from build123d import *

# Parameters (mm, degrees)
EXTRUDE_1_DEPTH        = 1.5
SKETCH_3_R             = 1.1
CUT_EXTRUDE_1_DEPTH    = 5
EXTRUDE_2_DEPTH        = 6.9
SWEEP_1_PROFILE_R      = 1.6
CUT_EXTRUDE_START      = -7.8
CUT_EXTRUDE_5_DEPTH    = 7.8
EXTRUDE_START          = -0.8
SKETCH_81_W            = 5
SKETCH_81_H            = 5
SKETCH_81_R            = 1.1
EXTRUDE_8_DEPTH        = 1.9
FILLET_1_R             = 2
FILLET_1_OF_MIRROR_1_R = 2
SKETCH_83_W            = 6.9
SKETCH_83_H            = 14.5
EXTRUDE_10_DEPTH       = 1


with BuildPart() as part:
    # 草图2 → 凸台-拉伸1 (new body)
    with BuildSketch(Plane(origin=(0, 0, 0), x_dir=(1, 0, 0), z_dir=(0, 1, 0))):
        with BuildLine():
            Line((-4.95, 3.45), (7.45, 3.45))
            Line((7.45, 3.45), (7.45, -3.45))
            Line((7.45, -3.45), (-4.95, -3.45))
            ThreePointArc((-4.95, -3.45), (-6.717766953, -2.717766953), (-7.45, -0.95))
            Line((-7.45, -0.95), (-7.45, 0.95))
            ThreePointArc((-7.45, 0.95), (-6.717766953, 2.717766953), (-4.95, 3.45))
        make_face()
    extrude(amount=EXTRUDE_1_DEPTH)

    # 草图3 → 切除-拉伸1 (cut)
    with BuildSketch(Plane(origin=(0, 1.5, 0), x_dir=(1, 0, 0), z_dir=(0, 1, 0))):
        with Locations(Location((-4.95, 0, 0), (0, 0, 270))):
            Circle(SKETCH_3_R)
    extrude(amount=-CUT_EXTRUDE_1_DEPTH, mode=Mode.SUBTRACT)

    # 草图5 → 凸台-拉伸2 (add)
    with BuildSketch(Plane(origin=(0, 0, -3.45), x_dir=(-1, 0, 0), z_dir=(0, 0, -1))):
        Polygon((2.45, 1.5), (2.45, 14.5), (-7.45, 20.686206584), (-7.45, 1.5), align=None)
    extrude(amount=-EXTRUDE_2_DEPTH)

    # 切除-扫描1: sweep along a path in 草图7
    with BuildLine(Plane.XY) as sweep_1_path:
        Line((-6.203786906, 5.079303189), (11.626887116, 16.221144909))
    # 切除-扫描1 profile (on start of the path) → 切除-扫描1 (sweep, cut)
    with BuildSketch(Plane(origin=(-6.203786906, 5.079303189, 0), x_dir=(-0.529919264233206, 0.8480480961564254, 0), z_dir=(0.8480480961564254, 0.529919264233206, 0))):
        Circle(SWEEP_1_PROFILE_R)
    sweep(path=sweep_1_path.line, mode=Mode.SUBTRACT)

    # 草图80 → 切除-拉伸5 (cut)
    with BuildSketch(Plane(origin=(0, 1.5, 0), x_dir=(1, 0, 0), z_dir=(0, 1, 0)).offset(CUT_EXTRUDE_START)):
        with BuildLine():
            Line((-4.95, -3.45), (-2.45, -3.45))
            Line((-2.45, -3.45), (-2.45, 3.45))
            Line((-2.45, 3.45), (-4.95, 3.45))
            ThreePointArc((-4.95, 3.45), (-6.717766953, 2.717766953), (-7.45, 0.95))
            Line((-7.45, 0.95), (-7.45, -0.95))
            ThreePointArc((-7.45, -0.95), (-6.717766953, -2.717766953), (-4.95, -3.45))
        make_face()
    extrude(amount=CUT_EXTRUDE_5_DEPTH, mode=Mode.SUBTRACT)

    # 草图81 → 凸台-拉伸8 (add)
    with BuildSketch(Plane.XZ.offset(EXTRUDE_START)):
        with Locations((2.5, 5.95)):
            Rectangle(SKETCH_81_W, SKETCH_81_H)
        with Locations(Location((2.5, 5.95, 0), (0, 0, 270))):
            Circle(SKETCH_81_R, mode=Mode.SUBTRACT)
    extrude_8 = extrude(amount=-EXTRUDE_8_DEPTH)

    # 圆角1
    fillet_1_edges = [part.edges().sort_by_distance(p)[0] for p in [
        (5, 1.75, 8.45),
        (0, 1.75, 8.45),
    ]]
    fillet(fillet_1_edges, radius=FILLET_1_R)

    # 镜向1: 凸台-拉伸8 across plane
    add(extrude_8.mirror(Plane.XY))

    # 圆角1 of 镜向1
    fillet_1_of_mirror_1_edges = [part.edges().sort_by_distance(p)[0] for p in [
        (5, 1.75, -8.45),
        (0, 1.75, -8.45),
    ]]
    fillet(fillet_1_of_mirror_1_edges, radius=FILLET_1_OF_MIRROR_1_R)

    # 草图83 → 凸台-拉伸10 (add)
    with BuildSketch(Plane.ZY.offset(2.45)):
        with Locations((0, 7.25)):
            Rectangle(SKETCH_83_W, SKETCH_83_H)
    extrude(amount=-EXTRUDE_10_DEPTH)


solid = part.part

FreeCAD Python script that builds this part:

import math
import FreeCAD as App
import Part
import Sketcher
Q = App.Units.Quantity


def edges_at(feature, points):
    """Names of the edges that pass closest to the given points."""
    edges = feature.Shape.Edges
    near = lambda p: min(range(len(edges)), key=lambda i: edges[i].distToShape(Part.Vertex(*p))[0])
    return sorted({f"Edge{near(p) + 1}" for p in points})

doc = App.newDocument("Part")
body = doc.addObject("PartDesign::Body", "Body")

sketch1 = doc.addObject("Sketcher::SketchObject", "Sketch")
body.addObject(sketch1)
sketch1.AttachmentSupport = (doc.XZ_Plane, [""])
sketch1.MapMode = "FlatFace"
sketch1.addGeometry([
    Part.LineSegment(App.Vector(7.45, -3.45, 0), App.Vector(-4.95, -3.45, 0)),
    Part.ArcOfCircle(Part.Circle(App.Vector(-4.95, -0.95, 0), App.Vector(0, 0, 1), 2.5), math.radians(180), math.radians(270)),
    Part.LineSegment(App.Vector(-7.45, -0.95, 0), App.Vector(-7.45, 0.95, 0)),
    Part.ArcOfCircle(Part.Circle(App.Vector(-4.95, 0.95, 0), App.Vector(0, 0, 1), 2.5), math.radians(90), math.radians(180)),
    Part.LineSegment(App.Vector(-4.95, 3.45, 0), App.Vector(7.45, 3.45, 0)),
    Part.LineSegment(App.Vector(7.45, 3.45, 0), App.Vector(7.45, -3.45, 0)),
], False)
sketch1.addConstraint([
    Sketcher.Constraint("Tangent", 0, 2, 1, 2),
    Sketcher.Constraint("Tangent", 1, 1, 2, 1),
    Sketcher.Constraint("Tangent", 2, 2, 3, 2),
    Sketcher.Constraint("Tangent", 3, 1, 4, 1),
    Sketcher.Constraint("Coincident", 4, 2, 5, 1),
    Sketcher.Constraint("Coincident", 5, 2, 0, 1),
    Sketcher.Constraint("Horizontal", 0),
    Sketcher.Constraint("Vertical", 2),
    Sketcher.Constraint("Horizontal", 4),
    Sketcher.Constraint("Vertical", 5),
    Sketcher.Constraint("Equal", 1, 3),
    Sketcher.Constraint("Radius", 1, Q("2.5 mm")),
    Sketcher.Constraint("DistanceX", 0, 2, 0, 1, Q("12.4 mm")),
    Sketcher.Constraint("DistanceY", 2, 1, 2, 2, Q("1.9 mm")),
    Sketcher.Constraint("DistanceX", 1, 3, -1, 1, Q("4.95 mm")),
    Sketcher.Constraint("DistanceY", 1, 3, -1, 1, Q("0.95 mm")),
])
pad1 = doc.addObject("PartDesign::Pad", "Pad")
body.addObject(pad1)
pad1.Profile = sketch1
pad1.Length = 1.5
pad1.Reversed = True

sketch2 = doc.addObject("Sketcher::SketchObject", "Sketch001")
body.addObject(sketch2)
sketch2.AttachmentSupport = (doc.XZ_Plane, [""])
sketch2.MapMode = "FlatFace"
sketch2.AttachmentOffset = App.Placement(App.Vector(0, 0, -1.5), App.Rotation())
sketch2.addGeometry(Part.Circle(App.Vector(-4.95, 0, 0), App.Vector(0, 0, 1), 1.1), False)
sketch2.addConstraint([
    Sketcher.Constraint("PointOnObject", 0, 3, -1),
    Sketcher.Constraint("Diameter", 0, Q("2.2 mm")),
    Sketcher.Constraint("DistanceX", 0, 3, -1, 1, Q("4.95 mm")),
])
pocket1 = doc.addObject("PartDesign::Pocket", "Pocket")
body.addObject(pocket1)
pocket1.Profile = sketch2
pocket1.Length = 5
pocket1.Reversed = True

sketch3 = doc.addObject("Sketcher::SketchObject", "Sketch002")
body.addObject(sketch3)
sketch3.AttachmentSupport = (doc.XY_Plane, [""])
sketch3.MapMode = "FlatFace"
sketch3.AttachmentOffset = App.Placement(App.Vector(0, 0, -3.45), App.Rotation())
sketch3.addGeometry([
    Part.LineSegment(App.Vector(-2.45, 1.5, 0), App.Vector(-2.45, 14.5, 0)),
    Part.LineSegment(App.Vector(-2.45, 14.5, 0), App.Vector(7.45, 20.686207, 0)),
    Part.LineSegment(App.Vector(7.45, 20.686207, 0), App.Vector(7.45, 1.5, 0)),
    Part.LineSegment(App.Vector(7.45, 1.5, 0), App.Vector(-2.45, 1.5, 0)),
], False)
sketch3.addConstraint([
    Sketcher.Constraint("Coincident", 0, 2, 1, 1),
    Sketcher.Constraint("Coincident", 1, 2, 2, 1),
    Sketcher.Constraint("Coincident", 2, 2, 3, 1),
    Sketcher.Constraint("Coincident", 3, 2, 0, 1),
    Sketcher.Constraint("Vertical", 0),
    Sketcher.Constraint("Vertical", 2),
    Sketcher.Constraint("Horizontal", 3),
    Sketcher.Constraint("DistanceY", 0, 1, 0, 2, Q("13 mm")),
    Sketcher.Constraint("Angle", 1, Q("32 deg")),
    Sketcher.Constraint("DistanceX", 3, 2, 3, 1, Q("9.9 mm")),
    Sketcher.Constraint("DistanceY", -1, 1, 0, 2, Q("14.5 mm")),
    Sketcher.Constraint("DistanceX", 0, 2, -1, 1, Q("2.45 mm")),
])
pad2 = doc.addObject("PartDesign::Pad", "Pad001")
body.addObject(pad2)
pad2.Profile = sketch3
pad2.Length = 6.9

sketch4 = doc.addObject("Sketcher::SketchObject", "Sketch003")
body.addObject(sketch4)
sketch4.Placement = App.Placement(App.Vector(-6.203787, 5.079303, 0), App.Rotation(App.Vector(-0.529919264, 0.848048096, 0), App.Vector(0, 0, 0.999999999), App.Vector(0.848048096, 0.529919264, 0), "ZXY"))
sketch4.addGeometry(Part.Circle(App.Vector(0, 0, 0), App.Vector(0, 0, 1), 1.6), False)
sketch4.addConstraint([
    Sketcher.Constraint("Coincident", 0, 3, -1, 1),
    Sketcher.Constraint("Diameter", 0, Q("3.2 mm")),
])

sketch5 = doc.addObject("Sketcher::SketchObject", "Sketch004")
body.addObject(sketch5)
sketch5.Placement = App.Placement(App.Vector(-4.024737, 6.440925, 0), App.Rotation(App.Vector(0.848048096, 0.529919264, 0), App.Vector(0, 0, 0.999999999), App.Vector(0.529919264, -0.848048096, 0), "ZXY"))
sketch5.addGeometry(Part.LineSegment(App.Vector(-2.569489, 0, 0), App.Vector(18.456057, 0, 0)), False)
sketch5.addConstraint([
    Sketcher.Constraint("Horizontal", 0),
    Sketcher.Constraint("PointOnObject", 0, 1, -1),
    Sketcher.Constraint("DistanceX", 0, 1, 0, 2, Q("21.025546 mm")),
    Sketcher.Constraint("DistanceX", 0, 1, -1, 1, Q("2.569489 mm")),
])
doc.recompute()

subtractivepipe = doc.addObject("PartDesign::SubtractivePipe", "SubtractivePipe")
body.addObject(subtractivepipe)
subtractivepipe.Profile = sketch4
subtractivepipe.Spine = (sketch5, ["Edge1"])

sketch6 = doc.addObject("Sketcher::SketchObject", "Sketch005")
body.addObject(sketch6)
sketch6.AttachmentSupport = (doc.XZ_Plane, [""])
sketch6.MapMode = "FlatFace"
sketch6.AttachmentOffset = App.Placement(App.Vector(0, 0, 6.3), App.Rotation())
sketch6.addGeometry([
    Part.LineSegment(App.Vector(-4.95, 3.45, 0), App.Vector(-2.45, 3.45, 0)),
    Part.LineSegment(App.Vector(-2.45, 3.45, 0), App.Vector(-2.45, -3.45, 0)),
    Part.LineSegment(App.Vector(-2.45, -3.45, 0), App.Vector(-4.95, -3.45, 0)),
    Part.ArcOfCircle(Part.Circle(App.Vector(-4.95, -0.95, 0), App.Vector(0, 0, 1), 2.5), math.radians(180), math.radians(270)),
    Part.LineSegment(App.Vector(-7.45, -0.95, 0), App.Vector(-7.45, 0.95, 0)),
    Part.ArcOfCircle(Part.Circle(App.Vector(-4.95, 0.95, 0), App.Vector(0, 0, 1), 2.5), math.radians(90), math.radians(180)),
], False)
sketch6.addConstraint([
    Sketcher.Constraint("Coincident", 0, 2, 1, 1),
    Sketcher.Constraint("Coincident", 1, 2, 2, 1),
    Sketcher.Constraint("Tangent", 2, 2, 3, 2),
    Sketcher.Constraint("Tangent", 3, 1, 4, 1),
    Sketcher.Constraint("Tangent", 4, 2, 5, 2),
    Sketcher.Constraint("Tangent", 5, 1, 0, 1),
    Sketcher.Constraint("Horizontal", 0),
    Sketcher.Constraint("Vertical", 1),
    Sketcher.Constraint("Horizontal", 2),
    Sketcher.Constraint("Vertical", 4),
    Sketcher.Constraint("Equal", 3, 5),
    Sketcher.Constraint("Radius", 3, Q("2.5 mm")),
    Sketcher.Constraint("DistanceX", 0, 1, 0, 2, Q("2.5 mm")),
    Sketcher.Constraint("DistanceY", 1, 2, 1, 1, Q("6.9 mm")),
    Sketcher.Constraint("DistanceX", 3, 3, -1, 1, Q("4.95 mm")),
    Sketcher.Constraint("DistanceY", 3, 3, -1, 1, Q("0.95 mm")),
])
pocket2 = doc.addObject("PartDesign::Pocket", "Pocket001")
body.addObject(pocket2)
pocket2.Profile = sketch6
pocket2.Length = 7.8

sketch7 = doc.addObject("Sketcher::SketchObject", "Sketch006")
body.addObject(sketch7)
sketch7.AttachmentSupport = (doc.XZ_Plane, [""])
sketch7.MapMode = "FlatFace"
sketch7.AttachmentOffset = App.Placement(App.Vector(0, 0, -0.8), App.Rotation())
sketch7.addGeometry([
    Part.LineSegment(App.Vector(0, 8.45, 0), App.Vector(0, 3.45, 0)),
    Part.LineSegment(App.Vector(0, 3.45, 0), App.Vector(5, 3.45, 0)),
    Part.LineSegment(App.Vector(5, 3.45, 0), App.Vector(5, 8.45, 0)),
    Part.LineSegment(App.Vector(5, 8.45, 0), App.Vector(0, 8.45, 0)),
    Part.Circle(App.Vector(2.5, 5.95, 0), App.Vector(0, 0, 1), 1.1),
], False)
sketch7.addConstraint([
    Sketcher.Constraint("Coincident", 0, 2, 1, 1),
    Sketcher.Constraint("Coincident", 1, 2, 2, 1),
    Sketcher.Constraint("Coincident", 2, 2, 3, 1),
    Sketcher.Constraint("Coincident", 3, 2, 0, 1),
    Sketcher.Constraint("Vertical", 0),
    Sketcher.Constraint("Horizontal", 1),
    Sketcher.Constraint("Vertical", 2),
    Sketcher.Constraint("Horizontal", 3),
    Sketcher.Constraint("PointOnObject", 0, 2, -2),
    Sketcher.Constraint("Equal", 3, 0),
    Sketcher.Constraint("Diameter", 4, Q("2.2 mm")),
    Sketcher.Constraint("DistanceX", 1, 1, 1, 2, Q("5 mm")),
    Sketcher.Constraint("DistanceX", -1, 1, 4, 3, Q("2.5 mm")),
    Sketcher.Constraint("DistanceY", 0, 2, 4, 3, Q("2.5 mm")),
    Sketcher.Constraint("DistanceY", -1, 1, 4, 3, Q("5.95 mm")),
])
pad3 = doc.addObject("PartDesign::Pad", "Pad002")
body.addObject(pad3)
pad3.Profile = sketch7
pad3.Length = 1.9
pad3.Reversed = True
doc.recompute()

fillet = doc.addObject("PartDesign::Fillet", "Fillet")
body.addObject(fillet)
fillet.Base = (pad3, edges_at(pad3, [(5, 1.75, 8.45), (0, 1.75, 8.45)]))
fillet.Radius = 2
doc.recompute()

mirrored = doc.addObject("PartDesign::Mirrored", "Mirrored")
body.addObject(mirrored)
mirrored.Originals = [pad3]
mirrored.MirrorPlane = (doc.XY_Plane, [""])
body.Tip = mirrored
doc.recompute()

fillet2 = doc.addObject("PartDesign::Fillet", "Fillet001")
body.addObject(fillet2)
fillet2.Base = (mirrored, edges_at(mirrored, [(5, 1.75, -8.45), (0, 1.75, -8.45)]))
fillet2.Radius = 2

sketch8 = doc.addObject("Sketcher::SketchObject", "Sketch007")
body.addObject(sketch8)
sketch8.AttachmentSupport = (doc.YZ_Plane, [""])
sketch8.MapMode = "FlatFace"
sketch8.AttachmentOffset = App.Placement(App.Vector(0, 0, -2.45), App.Rotation())
sketch8.addGeometry([
    Part.LineSegment(App.Vector(14.5, -3.45, 0), App.Vector(0, -3.45, 0)),
    Part.LineSegment(App.Vector(0, -3.45, 0), App.Vector(0, 3.45, 0)),
    Part.LineSegment(App.Vector(0, 3.45, 0), App.Vector(14.5, 3.45, 0)),
    Part.LineSegment(App.Vector(14.5, 3.45, 0), App.Vector(14.5, -3.45, 0)),
], False)
sketch8.addConstraint([
    Sketcher.Constraint("Coincident", 0, 2, 1, 1),
    Sketcher.Constraint("Coincident", 1, 2, 2, 1),
    Sketcher.Constraint("Coincident", 2, 2, 3, 1),
    Sketcher.Constraint("Coincident", 3, 2, 0, 1),
    Sketcher.Constraint("Horizontal", 0),
    Sketcher.Constraint("Vertical", 1),
    Sketcher.Constraint("Horizontal", 2),
    Sketcher.Constraint("Vertical", 3),
    Sketcher.Constraint("Symmetric", 0, 2, 1, 2, -1, 1),
    Sketcher.Constraint("DistanceX", 0, 2, 0, 1, Q("14.5 mm")),
    Sketcher.Constraint("DistanceY", 1, 1, 1, 2, Q("6.9 mm")),
])
pad4 = doc.addObject("PartDesign::Pad", "Pad003")
body.addObject(pad4)
pad4.Profile = sketch8
pad4.Length = 1

doc.recompute()
